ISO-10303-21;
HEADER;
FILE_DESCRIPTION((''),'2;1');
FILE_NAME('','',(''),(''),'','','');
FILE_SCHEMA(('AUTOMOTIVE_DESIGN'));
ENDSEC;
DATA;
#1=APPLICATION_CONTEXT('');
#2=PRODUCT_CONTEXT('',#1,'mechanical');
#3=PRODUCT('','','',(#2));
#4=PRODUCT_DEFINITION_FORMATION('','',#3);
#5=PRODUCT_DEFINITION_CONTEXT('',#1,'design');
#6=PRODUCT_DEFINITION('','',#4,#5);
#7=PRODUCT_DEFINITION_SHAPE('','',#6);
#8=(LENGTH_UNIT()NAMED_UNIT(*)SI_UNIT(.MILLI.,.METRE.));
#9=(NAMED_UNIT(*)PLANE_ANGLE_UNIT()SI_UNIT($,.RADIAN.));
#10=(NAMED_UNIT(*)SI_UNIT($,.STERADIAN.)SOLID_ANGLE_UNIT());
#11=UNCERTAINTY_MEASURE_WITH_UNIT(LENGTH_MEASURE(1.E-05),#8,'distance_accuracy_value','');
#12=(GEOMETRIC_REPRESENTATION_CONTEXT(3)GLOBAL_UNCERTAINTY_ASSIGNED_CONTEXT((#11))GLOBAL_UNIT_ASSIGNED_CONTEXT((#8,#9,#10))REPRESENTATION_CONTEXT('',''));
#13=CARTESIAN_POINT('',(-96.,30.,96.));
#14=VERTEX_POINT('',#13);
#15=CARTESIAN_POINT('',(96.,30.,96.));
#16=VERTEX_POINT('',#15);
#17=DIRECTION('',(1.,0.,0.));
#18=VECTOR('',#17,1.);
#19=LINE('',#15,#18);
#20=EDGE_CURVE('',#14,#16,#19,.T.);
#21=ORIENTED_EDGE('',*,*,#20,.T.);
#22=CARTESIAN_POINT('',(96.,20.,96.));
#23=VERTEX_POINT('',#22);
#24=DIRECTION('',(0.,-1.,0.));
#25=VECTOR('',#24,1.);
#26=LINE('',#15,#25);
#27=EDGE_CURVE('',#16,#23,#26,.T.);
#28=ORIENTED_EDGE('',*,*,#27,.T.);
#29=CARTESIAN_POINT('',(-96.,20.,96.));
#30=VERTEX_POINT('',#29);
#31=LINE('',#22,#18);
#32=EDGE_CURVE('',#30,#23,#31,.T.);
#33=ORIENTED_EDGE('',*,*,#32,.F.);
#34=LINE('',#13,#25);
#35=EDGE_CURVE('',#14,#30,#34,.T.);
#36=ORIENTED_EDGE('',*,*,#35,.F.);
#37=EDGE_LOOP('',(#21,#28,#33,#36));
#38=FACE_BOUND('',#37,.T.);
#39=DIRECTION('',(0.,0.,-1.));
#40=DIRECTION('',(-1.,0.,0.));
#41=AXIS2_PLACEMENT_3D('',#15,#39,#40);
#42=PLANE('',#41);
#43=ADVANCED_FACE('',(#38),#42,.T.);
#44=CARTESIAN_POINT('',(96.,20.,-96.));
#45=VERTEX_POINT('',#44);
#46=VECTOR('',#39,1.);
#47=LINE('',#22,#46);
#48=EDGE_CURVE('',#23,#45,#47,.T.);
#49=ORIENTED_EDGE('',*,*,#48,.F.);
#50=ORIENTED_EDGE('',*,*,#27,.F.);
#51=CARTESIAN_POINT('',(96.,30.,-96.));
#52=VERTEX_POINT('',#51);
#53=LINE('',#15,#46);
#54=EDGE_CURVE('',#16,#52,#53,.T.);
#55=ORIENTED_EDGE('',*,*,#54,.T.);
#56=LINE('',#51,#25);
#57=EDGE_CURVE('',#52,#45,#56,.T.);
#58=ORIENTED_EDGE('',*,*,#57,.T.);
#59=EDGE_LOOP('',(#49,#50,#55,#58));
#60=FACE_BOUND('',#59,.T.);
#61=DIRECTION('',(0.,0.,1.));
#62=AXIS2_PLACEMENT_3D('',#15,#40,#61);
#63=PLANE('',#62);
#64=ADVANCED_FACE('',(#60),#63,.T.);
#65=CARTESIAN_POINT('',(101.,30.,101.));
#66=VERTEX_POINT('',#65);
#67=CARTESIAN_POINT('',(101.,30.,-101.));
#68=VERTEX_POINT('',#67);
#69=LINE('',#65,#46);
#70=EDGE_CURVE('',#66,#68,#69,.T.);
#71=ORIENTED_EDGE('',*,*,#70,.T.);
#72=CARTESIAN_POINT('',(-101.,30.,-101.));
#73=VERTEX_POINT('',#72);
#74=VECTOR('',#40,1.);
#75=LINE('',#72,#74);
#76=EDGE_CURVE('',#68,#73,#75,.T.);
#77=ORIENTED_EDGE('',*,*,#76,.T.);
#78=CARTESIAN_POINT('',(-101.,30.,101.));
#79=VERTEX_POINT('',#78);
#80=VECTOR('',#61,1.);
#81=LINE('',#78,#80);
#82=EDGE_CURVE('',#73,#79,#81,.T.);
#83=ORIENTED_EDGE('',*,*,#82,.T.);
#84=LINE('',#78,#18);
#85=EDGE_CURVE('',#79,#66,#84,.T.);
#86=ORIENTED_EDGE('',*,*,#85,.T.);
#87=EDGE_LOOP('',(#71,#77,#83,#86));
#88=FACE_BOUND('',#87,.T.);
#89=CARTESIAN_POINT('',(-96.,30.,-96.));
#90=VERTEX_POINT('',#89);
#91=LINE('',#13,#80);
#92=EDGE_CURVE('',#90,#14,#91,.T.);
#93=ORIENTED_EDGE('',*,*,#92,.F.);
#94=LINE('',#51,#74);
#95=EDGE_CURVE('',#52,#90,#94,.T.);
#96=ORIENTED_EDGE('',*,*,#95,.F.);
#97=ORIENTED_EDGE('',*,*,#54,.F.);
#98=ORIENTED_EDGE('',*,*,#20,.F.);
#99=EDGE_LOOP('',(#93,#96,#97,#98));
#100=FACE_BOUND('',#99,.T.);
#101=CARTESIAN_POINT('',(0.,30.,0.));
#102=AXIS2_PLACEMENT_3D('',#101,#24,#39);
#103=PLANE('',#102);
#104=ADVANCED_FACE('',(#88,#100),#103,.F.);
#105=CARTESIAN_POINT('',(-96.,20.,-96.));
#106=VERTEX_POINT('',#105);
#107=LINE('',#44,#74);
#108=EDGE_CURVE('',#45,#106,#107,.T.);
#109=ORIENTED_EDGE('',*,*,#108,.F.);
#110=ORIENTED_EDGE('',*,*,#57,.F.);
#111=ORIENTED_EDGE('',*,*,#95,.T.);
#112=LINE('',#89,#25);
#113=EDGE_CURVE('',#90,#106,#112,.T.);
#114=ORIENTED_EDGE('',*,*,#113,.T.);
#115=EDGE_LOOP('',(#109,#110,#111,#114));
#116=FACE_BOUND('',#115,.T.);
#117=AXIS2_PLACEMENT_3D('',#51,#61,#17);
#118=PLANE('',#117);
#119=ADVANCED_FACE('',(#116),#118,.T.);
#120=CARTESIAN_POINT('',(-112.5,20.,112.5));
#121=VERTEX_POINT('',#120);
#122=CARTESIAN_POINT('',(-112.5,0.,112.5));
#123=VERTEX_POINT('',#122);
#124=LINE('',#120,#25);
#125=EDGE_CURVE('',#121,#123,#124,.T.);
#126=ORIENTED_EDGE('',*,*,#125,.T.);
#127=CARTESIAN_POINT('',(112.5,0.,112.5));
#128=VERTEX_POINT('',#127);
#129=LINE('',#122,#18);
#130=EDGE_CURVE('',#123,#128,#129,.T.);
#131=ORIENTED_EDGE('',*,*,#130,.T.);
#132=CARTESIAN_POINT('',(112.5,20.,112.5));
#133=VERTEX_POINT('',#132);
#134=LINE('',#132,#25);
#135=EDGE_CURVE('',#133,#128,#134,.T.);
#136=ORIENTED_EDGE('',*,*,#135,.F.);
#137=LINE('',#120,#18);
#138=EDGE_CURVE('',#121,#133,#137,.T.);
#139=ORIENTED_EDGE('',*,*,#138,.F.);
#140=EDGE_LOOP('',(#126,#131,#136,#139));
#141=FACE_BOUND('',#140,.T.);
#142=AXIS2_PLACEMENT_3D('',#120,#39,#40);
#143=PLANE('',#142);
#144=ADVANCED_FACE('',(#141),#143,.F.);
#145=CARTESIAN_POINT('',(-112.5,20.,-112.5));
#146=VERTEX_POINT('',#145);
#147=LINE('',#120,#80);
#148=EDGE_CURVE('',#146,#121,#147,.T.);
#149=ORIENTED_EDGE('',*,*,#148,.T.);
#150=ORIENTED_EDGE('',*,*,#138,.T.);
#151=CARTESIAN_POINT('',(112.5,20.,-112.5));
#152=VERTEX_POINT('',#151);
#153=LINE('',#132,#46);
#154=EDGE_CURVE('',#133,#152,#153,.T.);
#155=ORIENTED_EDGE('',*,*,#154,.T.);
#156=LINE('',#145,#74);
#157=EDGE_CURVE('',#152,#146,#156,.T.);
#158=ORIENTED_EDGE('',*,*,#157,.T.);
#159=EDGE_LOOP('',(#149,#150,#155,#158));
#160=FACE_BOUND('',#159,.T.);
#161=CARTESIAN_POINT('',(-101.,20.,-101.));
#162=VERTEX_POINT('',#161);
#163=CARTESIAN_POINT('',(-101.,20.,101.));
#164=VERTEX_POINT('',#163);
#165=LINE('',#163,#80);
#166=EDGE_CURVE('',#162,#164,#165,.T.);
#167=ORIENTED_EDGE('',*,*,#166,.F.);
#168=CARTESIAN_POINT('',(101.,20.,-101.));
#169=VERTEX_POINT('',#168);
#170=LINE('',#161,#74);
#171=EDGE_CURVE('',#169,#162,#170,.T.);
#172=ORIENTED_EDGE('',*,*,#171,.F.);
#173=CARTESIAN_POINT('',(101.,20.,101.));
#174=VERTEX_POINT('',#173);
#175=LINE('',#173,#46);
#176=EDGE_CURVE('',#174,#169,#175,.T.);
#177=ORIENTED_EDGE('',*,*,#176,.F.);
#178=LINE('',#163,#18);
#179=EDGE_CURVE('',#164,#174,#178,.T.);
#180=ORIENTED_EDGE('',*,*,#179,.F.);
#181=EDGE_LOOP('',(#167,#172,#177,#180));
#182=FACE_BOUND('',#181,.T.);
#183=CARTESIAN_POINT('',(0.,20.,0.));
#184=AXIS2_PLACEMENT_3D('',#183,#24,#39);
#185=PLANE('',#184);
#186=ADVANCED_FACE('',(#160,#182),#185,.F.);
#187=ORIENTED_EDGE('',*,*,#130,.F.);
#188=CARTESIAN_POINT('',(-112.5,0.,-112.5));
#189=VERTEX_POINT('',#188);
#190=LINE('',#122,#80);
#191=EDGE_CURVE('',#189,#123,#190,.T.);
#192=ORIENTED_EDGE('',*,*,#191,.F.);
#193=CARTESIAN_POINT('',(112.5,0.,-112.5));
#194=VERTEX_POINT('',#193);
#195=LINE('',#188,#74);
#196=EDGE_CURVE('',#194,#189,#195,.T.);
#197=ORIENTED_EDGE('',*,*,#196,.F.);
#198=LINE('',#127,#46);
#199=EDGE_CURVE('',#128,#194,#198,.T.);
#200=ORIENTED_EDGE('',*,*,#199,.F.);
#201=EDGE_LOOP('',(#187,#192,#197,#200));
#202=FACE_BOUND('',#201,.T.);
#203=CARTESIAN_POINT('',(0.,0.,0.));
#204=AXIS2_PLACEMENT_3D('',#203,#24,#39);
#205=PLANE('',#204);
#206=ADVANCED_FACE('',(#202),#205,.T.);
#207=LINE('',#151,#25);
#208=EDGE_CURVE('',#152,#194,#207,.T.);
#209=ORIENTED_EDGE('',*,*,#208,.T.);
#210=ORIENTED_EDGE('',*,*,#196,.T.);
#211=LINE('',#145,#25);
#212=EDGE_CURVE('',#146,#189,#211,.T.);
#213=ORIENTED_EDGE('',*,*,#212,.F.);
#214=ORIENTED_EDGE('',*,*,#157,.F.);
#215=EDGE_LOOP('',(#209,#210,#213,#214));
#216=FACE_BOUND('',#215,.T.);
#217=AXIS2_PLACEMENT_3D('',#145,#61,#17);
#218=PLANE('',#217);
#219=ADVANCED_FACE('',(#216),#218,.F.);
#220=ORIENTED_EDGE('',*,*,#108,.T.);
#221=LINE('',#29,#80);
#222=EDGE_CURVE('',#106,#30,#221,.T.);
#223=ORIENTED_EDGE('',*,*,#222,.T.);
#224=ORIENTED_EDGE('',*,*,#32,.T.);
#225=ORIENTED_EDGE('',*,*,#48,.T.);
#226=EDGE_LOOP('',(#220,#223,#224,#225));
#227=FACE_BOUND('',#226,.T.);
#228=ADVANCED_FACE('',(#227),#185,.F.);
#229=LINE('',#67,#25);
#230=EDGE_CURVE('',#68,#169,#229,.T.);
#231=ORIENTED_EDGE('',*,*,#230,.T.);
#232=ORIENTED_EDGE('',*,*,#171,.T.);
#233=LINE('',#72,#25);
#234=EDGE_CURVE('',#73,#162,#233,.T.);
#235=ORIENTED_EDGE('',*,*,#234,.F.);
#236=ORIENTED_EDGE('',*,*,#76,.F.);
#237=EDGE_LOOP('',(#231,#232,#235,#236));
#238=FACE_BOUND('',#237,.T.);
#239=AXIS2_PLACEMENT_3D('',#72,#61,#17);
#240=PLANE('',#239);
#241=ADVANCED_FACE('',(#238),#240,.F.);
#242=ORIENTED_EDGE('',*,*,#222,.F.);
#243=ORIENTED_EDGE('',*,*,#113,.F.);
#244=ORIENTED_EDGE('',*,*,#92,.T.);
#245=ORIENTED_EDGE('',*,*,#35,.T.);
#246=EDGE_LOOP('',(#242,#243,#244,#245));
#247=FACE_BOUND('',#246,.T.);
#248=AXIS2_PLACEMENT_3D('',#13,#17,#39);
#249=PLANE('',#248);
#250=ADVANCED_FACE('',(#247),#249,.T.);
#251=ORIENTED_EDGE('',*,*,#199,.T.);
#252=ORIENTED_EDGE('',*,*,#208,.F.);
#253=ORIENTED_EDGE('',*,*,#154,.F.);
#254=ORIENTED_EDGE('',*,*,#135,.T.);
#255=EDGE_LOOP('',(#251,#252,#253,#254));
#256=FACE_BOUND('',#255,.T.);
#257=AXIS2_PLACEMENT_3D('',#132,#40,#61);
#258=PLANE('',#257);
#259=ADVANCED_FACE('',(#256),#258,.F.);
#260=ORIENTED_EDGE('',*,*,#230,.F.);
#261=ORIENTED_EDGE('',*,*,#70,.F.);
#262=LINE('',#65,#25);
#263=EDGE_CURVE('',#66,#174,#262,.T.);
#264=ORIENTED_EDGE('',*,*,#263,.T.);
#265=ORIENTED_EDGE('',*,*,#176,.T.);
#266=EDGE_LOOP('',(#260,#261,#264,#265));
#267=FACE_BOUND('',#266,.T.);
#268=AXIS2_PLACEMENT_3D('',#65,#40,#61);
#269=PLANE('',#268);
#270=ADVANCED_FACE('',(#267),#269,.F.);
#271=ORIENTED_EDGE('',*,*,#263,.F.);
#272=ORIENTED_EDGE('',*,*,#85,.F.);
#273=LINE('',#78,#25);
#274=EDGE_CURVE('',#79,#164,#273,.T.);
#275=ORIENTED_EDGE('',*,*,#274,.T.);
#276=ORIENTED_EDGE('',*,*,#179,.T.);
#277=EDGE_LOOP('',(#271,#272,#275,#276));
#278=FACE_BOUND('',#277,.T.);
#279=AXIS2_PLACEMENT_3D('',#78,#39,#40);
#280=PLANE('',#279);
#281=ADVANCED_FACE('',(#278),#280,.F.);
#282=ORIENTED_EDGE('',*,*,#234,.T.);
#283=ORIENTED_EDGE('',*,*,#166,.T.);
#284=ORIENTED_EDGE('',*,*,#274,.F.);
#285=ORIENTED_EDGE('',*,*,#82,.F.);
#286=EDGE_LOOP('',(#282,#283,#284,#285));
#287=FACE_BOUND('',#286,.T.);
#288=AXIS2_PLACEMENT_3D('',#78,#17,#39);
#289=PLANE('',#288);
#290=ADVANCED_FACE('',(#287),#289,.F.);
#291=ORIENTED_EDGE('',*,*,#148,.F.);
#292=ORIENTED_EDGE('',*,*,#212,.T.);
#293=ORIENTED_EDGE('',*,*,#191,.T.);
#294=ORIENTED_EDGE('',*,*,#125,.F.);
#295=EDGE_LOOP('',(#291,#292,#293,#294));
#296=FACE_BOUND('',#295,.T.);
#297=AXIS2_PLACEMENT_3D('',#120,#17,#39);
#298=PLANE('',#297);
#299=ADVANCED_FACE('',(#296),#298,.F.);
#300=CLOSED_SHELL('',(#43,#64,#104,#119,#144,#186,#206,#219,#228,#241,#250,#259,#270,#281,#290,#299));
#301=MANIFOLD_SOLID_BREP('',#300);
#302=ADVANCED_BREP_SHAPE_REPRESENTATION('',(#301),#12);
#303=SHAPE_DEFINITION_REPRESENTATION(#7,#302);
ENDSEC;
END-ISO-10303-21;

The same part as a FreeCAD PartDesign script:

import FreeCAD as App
import Part
import Sketcher

V = App.Vector


def add_polygon(sketch, points):
    """Adds a closed chain of lines whose ends are joined by coincident constraints."""
    first, n = sketch.GeometryCount, len(points)
    for a, b in zip(points, points[1:] + points[:1]):
        sketch.addGeometry(Part.LineSegment(App.Vector(*a, 0), App.Vector(*b, 0)), False)
    for i in range(n):
        sketch.addConstraint(Sketcher.Constraint("Coincident", first + i, 2, first + (i + 1) % n, 1))

doc = App.newDocument("Part")
body = doc.addObject("PartDesign::Body", "Body")

# Sketch on XZ plane
sketch1 = body.newObject("Sketcher::SketchObject", "Sketch")
sketch1.AttachmentSupport = (doc.getObject("XZ_Plane"), [""])
sketch1.MapMode = "FlatFace"
add_polygon(sketch1, [(-112.5, -112.5), (-112.5, 112.5), (112.5, 112.5), (112.5, -112.5)])  # lines 0-3
sketch1.addConstraint([
    Sketcher.Constraint("Vertical", 0),
    Sketcher.Constraint("Horizontal", 1),
    Sketcher.Constraint("Vertical", 2),
    Sketcher.Constraint("Horizontal", 3),
    Sketcher.Constraint("Symmetric", 0, 2, 2, 2, -1, 1),
    Sketcher.Constraint("Equal", 3, 0),
    Sketcher.Constraint("DistanceX", 1, 1, 1, 2, 225.0),
])
pad1 = body.newObject("PartDesign::Pad", "Pad")
pad1.Profile = sketch1
pad1.Length = 20
pad1.Reversed = True

# Sketch on XZ plane
sketch2 = body.newObject("Sketcher::SketchObject", "Sketch001")
sketch2.AttachmentSupport = (doc.getObject("XZ_Plane"), [""])
sketch2.MapMode = "FlatFace"
sketch2.AttachmentOffset = App.Placement(V(0, 0, -20), App.Rotation())
add_polygon(sketch2, [(-101, -101), (-101, 101), (101, 101), (101, -101)])  # lines 0-3
add_polygon(sketch2, [(96, 96), (-96, 96), (-96, -96), (96, -96)])  # lines 4-7
sketch2.addConstraint([
    Sketcher.Constraint("Vertical", 0),
    Sketcher.Constraint("Horizontal", 1),
    Sketcher.Constraint("Vertical", 2),
    Sketcher.Constraint("Horizontal", 3),
    Sketcher.Constraint("Horizontal", 4),
    Sketcher.Constraint("Vertical", 5),
    Sketcher.Constraint("Horizontal", 6),
    Sketcher.Constraint("Vertical", 7),
    Sketcher.Constraint("Symmetric", 0, 2, 2, 2, -1, 1),
    Sketcher.Constraint("Symmetric", 4, 2, 6, 2, -1, 1),
    Sketcher.Constraint("Equal", 3, 0),
    Sketcher.Constraint("Equal", 6, 5),
    Sketcher.Constraint("DistanceX", 1, 1, 1, 2, 202.0),
    Sketcher.Constraint("DistanceX", 4, 2, 4, 1, 192.0),
])
pad2 = body.newObject("PartDesign::Pad", "Pad001")
pad2.Profile = sketch2
pad2.Length = 10
pad2.Reversed = True

doc.recompute()
